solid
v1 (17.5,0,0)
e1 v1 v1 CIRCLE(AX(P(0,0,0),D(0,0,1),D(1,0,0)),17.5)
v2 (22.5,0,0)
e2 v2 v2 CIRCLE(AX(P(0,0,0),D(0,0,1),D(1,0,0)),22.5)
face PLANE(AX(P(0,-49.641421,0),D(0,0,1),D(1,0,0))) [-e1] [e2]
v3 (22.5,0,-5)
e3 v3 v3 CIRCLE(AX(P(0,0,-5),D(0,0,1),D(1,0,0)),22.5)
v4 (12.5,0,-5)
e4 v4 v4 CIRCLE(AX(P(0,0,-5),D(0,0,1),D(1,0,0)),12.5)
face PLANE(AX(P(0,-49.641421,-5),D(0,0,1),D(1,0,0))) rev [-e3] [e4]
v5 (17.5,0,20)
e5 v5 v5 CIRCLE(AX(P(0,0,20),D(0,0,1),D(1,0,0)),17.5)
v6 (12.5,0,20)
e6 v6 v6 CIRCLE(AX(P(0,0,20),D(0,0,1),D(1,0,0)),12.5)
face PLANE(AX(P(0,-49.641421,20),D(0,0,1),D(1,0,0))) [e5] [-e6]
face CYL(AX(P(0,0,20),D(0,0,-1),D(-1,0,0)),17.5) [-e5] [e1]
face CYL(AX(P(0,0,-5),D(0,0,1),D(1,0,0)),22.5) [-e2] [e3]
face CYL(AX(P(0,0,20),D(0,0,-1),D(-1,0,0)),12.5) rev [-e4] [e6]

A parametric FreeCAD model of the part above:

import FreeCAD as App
import Part
import Sketcher
from FreeCAD import Vector
Q = App.Units.Quantity

doc = App.newDocument("Part")
body = doc.addObject("PartDesign::Body", "Body")

# Sketch on XY plane
sketch1 = doc.addObject("Sketcher::SketchObject", "Sketch")
body.addObject(sketch1)
sketch1.AttachmentSupport = (doc.XY_Plane, [""])
sketch1.MapMode = "FlatFace"
sketch1.addGeometry([
    Part.Circle(Vector(0, 0, 0), Vector(0, 0, 1), 18),
    Part.Circle(Vector(0, 0, 0), Vector(0, 0, 1), 12),
], False)
sketch1.addConstraint([
    Sketcher.Constraint("Coincident", 0, 3, -1, 1),
    Sketcher.Constraint("Coincident", 1, 3, -1, 1),
    Sketcher.Constraint("Diameter", 0, Q("35 mm")),
    Sketcher.Constraint("Diameter", 1, Q("25 mm")),
])
pad1 = doc.addObject("PartDesign::Pad", "Pad")
body.addObject(pad1)
pad1.Profile = sketch1
pad1.Length = 20

# Sketch on XY plane
sketch2 = doc.addObject("Sketcher::SketchObject", "Sketch001")
body.addObject(sketch2)
sketch2.AttachmentSupport = (doc.XY_Plane, [""])
sketch2.MapMode = "FlatFace"
sketch2.AttachmentOffset = App.Placement(Vector(0, 0, -5), App.Rotation())
sketch2.addGeometry([
    Part.Circle(Vector(0, 0, 0), Vector(0, 0, 1), 22),
    Part.Circle(Vector(0, 0, 0), Vector(0, 0, 1), 12),
], False)
sketch2.addConstraint([
    Sketcher.Constraint("Coincident", 0, 3, -1, 1),
    Sketcher.Constraint("Coincident", 1, 3, -1, 1),
    Sketcher.Constraint("Diameter", 0, Q("45 mm")),
    Sketcher.Constraint("Diameter", 1, Q("25 mm")),
])
pad2 = doc.addObject("PartDesign::Pad", "Pad001")
body.addObject(pad2)
pad2.Profile = sketch2
pad2.Length = 5

doc.recompute()
